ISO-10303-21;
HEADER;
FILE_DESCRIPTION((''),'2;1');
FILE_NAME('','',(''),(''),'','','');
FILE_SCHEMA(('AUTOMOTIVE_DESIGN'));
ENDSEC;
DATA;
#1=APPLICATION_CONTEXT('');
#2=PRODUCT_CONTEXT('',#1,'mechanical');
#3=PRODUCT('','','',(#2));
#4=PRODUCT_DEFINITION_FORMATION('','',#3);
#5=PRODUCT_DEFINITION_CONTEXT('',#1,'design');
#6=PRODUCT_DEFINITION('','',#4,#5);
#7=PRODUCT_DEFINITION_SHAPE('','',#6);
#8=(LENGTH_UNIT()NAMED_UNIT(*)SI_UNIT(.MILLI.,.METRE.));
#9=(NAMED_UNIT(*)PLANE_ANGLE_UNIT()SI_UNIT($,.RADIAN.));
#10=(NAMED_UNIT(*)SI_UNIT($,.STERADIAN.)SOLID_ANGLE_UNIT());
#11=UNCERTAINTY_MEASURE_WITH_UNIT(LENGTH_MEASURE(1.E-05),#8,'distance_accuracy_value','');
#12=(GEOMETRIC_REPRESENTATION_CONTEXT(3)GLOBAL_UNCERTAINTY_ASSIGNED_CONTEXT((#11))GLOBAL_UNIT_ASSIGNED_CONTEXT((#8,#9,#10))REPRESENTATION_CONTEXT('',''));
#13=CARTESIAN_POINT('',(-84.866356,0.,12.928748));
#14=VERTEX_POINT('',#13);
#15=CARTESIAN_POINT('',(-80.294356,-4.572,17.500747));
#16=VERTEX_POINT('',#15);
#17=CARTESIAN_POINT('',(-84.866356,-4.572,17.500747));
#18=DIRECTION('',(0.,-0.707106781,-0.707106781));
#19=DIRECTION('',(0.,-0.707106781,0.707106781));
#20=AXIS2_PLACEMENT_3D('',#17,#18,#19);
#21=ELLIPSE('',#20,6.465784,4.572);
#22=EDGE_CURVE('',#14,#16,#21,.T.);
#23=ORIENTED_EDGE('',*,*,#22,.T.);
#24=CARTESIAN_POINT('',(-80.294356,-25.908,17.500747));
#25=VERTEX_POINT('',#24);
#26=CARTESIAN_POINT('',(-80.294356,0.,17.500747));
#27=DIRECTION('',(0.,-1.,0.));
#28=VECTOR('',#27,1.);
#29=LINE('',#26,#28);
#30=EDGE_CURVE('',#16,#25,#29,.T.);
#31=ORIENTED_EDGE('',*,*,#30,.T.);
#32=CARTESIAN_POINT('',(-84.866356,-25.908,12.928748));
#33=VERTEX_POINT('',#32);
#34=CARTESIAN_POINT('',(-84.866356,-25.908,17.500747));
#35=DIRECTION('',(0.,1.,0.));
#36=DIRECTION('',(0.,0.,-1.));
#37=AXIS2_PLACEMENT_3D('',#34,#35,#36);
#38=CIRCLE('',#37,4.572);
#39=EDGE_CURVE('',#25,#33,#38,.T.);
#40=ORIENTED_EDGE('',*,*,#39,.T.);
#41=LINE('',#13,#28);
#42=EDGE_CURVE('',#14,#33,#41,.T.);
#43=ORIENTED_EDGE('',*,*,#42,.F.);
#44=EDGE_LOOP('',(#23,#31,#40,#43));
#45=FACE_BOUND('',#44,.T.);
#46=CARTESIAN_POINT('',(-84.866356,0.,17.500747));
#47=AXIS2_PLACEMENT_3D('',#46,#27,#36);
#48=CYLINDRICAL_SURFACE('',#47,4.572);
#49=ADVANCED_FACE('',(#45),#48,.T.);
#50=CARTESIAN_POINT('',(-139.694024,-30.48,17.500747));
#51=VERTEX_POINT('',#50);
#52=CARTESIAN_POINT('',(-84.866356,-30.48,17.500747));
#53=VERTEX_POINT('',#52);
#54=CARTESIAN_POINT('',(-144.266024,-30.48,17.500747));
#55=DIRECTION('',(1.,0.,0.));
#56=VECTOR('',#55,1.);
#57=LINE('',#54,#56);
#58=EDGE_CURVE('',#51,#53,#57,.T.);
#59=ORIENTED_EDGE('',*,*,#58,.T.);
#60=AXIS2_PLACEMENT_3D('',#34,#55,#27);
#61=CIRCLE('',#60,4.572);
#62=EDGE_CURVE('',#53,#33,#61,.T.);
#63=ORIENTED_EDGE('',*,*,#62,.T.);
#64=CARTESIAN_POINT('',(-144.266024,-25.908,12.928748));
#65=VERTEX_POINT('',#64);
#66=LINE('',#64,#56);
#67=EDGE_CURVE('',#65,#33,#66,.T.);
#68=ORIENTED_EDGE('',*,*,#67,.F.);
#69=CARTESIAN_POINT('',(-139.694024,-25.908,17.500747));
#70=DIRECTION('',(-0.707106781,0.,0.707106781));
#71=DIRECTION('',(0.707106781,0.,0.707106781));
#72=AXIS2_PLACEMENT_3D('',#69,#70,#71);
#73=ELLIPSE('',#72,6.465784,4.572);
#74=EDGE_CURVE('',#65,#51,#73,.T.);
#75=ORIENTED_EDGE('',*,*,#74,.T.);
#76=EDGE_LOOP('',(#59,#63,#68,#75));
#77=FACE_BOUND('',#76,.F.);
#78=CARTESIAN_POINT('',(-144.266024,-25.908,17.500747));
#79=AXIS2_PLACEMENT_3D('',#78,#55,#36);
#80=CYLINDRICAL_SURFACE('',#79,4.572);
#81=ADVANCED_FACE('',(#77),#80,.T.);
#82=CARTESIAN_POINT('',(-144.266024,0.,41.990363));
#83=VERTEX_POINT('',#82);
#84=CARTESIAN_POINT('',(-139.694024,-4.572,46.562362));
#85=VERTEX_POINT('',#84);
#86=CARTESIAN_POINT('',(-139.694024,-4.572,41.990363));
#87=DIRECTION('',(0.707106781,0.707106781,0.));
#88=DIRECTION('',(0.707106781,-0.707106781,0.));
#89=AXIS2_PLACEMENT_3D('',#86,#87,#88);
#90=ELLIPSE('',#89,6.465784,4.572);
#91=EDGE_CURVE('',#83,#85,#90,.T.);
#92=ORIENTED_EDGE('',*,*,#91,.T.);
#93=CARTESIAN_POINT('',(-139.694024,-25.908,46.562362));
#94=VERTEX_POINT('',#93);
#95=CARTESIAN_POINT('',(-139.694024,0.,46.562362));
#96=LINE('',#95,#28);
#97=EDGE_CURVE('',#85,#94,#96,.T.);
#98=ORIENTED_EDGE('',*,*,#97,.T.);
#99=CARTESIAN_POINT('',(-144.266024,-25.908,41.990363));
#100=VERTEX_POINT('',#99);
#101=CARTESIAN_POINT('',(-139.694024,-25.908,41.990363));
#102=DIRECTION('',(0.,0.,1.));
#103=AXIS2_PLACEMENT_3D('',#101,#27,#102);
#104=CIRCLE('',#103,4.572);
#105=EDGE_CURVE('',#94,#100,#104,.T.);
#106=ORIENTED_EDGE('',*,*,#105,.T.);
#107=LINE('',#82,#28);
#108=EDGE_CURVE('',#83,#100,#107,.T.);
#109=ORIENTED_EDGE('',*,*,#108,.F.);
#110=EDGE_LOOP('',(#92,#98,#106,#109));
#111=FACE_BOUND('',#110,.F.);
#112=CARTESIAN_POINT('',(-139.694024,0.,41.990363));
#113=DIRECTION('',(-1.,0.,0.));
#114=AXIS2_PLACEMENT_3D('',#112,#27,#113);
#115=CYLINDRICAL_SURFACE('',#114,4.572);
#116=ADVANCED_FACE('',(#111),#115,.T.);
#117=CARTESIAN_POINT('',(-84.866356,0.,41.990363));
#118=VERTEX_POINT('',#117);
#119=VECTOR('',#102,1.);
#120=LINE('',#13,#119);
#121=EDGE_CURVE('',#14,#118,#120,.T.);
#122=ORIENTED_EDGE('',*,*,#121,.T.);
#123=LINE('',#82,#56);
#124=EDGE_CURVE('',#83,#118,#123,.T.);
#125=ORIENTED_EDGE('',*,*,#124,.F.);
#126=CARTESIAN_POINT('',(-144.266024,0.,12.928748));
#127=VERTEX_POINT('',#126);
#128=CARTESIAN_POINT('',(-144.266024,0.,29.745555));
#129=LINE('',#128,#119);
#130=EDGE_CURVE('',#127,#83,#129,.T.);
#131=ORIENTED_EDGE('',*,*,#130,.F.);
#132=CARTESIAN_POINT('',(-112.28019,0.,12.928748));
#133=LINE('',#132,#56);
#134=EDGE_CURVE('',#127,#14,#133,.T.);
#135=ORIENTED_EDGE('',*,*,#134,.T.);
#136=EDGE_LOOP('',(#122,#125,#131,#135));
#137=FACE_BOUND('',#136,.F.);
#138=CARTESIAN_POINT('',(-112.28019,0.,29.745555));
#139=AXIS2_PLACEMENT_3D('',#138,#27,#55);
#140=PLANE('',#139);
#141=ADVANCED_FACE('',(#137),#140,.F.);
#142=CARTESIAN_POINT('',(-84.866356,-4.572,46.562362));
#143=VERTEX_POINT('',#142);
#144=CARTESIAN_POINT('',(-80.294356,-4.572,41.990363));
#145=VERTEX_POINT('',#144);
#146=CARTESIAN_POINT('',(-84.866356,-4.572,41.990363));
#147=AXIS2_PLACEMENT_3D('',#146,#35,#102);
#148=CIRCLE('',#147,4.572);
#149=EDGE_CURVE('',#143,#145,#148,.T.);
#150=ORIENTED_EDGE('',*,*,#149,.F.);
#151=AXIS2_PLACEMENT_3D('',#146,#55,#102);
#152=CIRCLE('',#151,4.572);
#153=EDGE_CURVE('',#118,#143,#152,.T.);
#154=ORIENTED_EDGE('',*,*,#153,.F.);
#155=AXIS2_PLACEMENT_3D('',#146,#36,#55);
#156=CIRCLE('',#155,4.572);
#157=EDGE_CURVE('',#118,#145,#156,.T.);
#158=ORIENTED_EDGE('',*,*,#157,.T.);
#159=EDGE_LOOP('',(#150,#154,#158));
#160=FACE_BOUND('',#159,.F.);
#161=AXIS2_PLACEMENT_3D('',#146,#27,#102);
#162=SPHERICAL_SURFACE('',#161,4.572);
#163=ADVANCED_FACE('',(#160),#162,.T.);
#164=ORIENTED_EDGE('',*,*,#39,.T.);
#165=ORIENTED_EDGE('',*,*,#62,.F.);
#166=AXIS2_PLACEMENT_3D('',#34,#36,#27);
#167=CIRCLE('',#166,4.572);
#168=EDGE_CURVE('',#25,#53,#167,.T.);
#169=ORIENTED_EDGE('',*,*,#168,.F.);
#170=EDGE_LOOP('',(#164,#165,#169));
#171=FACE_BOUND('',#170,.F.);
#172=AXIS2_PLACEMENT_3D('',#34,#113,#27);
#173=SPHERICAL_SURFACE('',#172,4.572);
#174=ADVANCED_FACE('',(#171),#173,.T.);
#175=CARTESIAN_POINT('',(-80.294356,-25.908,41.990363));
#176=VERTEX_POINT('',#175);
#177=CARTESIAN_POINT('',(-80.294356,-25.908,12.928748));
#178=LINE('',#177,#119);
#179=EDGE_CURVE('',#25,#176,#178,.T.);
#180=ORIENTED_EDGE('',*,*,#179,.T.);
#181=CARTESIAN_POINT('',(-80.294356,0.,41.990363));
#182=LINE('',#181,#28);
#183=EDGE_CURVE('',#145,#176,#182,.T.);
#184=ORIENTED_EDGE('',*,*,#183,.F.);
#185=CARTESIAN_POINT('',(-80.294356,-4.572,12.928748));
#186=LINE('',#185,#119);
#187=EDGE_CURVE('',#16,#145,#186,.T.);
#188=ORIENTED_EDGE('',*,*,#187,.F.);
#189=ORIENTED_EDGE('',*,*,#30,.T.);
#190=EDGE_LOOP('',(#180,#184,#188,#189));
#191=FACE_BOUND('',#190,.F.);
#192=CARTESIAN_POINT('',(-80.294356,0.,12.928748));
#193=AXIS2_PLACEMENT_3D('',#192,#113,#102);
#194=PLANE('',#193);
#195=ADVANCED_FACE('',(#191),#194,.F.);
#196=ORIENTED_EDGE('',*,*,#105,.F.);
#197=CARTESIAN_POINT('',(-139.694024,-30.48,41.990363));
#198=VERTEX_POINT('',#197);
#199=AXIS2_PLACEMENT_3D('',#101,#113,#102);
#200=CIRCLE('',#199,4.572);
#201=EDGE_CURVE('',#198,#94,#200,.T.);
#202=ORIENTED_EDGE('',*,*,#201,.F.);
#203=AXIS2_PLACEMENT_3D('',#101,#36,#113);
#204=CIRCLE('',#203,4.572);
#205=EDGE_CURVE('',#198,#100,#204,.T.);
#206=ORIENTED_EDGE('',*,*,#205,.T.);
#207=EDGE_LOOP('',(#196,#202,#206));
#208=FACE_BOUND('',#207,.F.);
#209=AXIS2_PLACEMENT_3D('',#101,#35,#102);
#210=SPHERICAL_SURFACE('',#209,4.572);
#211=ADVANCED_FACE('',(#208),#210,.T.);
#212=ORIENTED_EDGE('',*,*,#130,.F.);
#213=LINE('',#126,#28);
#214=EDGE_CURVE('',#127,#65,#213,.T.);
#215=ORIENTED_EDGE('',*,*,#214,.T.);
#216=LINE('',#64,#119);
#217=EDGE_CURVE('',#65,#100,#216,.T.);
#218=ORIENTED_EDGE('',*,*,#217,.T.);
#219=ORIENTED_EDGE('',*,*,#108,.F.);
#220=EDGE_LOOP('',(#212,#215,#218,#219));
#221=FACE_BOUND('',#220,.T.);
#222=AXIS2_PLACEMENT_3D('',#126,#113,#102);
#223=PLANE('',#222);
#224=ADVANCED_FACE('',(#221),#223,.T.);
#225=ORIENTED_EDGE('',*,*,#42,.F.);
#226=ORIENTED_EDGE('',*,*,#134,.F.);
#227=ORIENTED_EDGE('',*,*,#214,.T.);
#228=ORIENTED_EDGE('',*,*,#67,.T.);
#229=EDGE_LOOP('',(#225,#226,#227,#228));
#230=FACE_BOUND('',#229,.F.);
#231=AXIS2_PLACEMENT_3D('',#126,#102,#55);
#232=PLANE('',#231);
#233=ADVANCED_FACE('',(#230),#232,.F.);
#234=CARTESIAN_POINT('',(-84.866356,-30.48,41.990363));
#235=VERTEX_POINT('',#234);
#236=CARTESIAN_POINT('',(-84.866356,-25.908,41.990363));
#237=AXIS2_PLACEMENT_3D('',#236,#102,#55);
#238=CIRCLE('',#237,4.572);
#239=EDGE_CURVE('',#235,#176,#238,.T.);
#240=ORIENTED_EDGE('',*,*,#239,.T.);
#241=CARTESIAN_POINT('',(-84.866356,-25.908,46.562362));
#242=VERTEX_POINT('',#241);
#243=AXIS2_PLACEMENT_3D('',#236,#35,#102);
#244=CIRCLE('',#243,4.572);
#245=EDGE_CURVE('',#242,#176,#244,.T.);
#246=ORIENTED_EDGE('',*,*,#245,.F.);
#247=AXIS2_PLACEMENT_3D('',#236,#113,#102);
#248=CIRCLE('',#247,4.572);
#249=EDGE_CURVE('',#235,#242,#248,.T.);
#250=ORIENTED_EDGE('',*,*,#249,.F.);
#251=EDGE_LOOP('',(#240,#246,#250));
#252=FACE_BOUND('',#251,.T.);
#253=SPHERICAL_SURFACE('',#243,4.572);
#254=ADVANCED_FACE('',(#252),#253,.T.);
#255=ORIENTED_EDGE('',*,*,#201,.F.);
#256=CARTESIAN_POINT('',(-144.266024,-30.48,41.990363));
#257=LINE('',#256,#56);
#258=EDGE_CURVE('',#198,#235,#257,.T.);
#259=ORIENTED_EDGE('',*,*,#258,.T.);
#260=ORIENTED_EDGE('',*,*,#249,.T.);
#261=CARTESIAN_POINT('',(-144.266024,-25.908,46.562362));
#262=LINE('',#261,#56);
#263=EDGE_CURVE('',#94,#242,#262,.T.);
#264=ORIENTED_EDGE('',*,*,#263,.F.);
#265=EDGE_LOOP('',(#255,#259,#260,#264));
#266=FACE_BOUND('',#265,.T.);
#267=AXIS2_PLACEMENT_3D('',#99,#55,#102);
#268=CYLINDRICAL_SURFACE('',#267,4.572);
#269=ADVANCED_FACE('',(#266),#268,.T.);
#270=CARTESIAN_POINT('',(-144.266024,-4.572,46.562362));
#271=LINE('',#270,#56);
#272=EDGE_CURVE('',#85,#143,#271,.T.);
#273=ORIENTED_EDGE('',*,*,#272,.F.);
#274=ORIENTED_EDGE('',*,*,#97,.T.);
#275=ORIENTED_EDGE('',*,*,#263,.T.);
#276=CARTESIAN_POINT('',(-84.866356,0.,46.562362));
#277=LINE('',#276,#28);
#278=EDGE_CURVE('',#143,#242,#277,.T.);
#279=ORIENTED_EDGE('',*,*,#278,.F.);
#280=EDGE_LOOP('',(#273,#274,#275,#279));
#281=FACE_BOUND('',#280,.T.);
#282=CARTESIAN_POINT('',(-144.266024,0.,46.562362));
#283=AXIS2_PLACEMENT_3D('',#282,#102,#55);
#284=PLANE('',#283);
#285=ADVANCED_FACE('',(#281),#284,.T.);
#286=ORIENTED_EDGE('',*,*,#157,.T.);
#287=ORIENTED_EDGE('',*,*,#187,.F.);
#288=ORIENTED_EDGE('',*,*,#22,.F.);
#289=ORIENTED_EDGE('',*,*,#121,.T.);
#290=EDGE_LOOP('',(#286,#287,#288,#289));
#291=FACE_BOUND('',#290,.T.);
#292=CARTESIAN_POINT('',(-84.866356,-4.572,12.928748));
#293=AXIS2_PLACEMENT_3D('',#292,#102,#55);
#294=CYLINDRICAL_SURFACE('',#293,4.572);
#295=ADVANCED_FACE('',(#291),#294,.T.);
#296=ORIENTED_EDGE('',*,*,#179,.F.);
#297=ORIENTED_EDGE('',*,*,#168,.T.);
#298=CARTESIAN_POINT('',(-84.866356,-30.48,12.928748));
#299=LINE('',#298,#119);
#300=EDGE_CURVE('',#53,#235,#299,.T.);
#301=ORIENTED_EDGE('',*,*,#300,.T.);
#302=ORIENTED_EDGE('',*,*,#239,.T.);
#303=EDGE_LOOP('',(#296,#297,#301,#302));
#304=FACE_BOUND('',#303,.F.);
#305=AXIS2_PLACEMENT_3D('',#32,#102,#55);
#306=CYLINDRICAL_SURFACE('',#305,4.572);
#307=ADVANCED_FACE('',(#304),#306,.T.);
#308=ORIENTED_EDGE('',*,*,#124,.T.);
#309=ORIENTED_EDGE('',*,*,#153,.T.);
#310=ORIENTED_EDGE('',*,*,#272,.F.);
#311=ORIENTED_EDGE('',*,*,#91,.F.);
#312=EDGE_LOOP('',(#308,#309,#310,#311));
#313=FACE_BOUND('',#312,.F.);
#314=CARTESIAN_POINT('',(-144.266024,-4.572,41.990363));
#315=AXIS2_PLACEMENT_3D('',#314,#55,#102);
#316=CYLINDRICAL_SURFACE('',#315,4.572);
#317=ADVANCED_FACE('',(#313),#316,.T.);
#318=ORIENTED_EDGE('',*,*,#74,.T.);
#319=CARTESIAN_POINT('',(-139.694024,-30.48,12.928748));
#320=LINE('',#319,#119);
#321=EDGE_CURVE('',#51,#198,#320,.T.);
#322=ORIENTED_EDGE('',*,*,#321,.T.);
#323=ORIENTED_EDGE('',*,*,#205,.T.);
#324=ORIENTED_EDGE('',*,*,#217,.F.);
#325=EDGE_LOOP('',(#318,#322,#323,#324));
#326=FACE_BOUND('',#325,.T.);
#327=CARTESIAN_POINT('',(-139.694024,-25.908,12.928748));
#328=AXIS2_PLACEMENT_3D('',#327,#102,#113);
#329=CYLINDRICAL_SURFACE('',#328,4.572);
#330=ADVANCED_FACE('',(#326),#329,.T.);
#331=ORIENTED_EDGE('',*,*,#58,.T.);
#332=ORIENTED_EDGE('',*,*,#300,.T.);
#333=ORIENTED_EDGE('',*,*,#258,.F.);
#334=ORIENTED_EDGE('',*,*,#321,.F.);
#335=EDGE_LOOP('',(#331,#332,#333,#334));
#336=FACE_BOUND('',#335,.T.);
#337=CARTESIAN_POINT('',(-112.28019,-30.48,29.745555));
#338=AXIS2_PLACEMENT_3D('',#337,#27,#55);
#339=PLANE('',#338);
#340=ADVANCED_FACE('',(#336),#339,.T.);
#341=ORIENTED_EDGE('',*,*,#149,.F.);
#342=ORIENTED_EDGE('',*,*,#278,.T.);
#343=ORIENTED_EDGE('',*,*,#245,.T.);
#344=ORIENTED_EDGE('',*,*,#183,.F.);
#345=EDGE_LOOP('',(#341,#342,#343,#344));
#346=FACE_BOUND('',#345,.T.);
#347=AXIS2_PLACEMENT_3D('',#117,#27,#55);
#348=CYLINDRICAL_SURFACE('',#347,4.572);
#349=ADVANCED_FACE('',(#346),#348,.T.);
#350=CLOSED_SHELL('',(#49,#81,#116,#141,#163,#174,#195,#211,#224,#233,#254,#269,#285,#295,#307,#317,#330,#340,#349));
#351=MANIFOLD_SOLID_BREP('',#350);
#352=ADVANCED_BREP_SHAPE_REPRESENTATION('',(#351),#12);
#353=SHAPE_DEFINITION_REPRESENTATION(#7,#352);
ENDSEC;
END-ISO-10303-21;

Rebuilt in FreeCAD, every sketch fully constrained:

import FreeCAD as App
import Part
import Sketcher

V = App.Vector
Q = App.Units.Quantity


def edges_at(feature, points):
    """Names of the edges that pass closest to the given points."""
    edges = feature.Shape.Edges
    near = lambda p: min(range(len(edges)), key=lambda i: edges[i].distToShape(Part.Vertex(*p))[0])
    return sorted({f"Edge{near(p) + 1}" for p in points})

doc = App.newDocument("Part")
body = doc.addObject("PartDesign::Body", "Body")

sketch1 = body.newObject("Sketcher::SketchObject", "Sketch")
sketch1.AttachmentSupport = (doc.getObject("XZ_Plane"), [""])
sketch1.MapMode = "FlatFace"
sketch1.addGeometry([
    Part.LineSegment(V(-144.266024, 46.562362, 0), V(-144.266024, 12.928748, 0)),
    Part.LineSegment(V(-144.266024, 12.928748, 0), V(-80.294356, 12.928748, 0)),
    Part.LineSegment(V(-80.294356, 12.928748, 0), V(-80.294356, 46.562362, 0)),
    Part.LineSegment(V(-80.294356, 46.562362, 0), V(-144.266024, 46.562362, 0)),
], False)
sketch1.addConstraint([
    Sketcher.Constraint("Coincident", 0, 2, 1, 1),
    Sketcher.Constraint("Coincident", 1, 2, 2, 1),
    Sketcher.Constraint("Coincident", 2, 2, 3, 1),
    Sketcher.Constraint("Coincident", 3, 2, 0, 1),
    Sketcher.Constraint("Vertical", 0),
    Sketcher.Constraint("Horizontal", 1),
    Sketcher.Constraint("Vertical", 2),
    Sketcher.Constraint("Horizontal", 3),
    Sketcher.Constraint("DistanceX", 1, 1, 1, 2, Q("63.971668 mm")),
    Sketcher.Constraint("DistanceY", 0, 2, 0, 1, Q("33.633615 mm")),
    Sketcher.Constraint("DistanceX", 0, 2, -1, 1, Q("144.266024 mm")),
    Sketcher.Constraint("DistanceY", -1, 1, 0, 2, Q("12.928748 mm")),
])
pad1 = body.newObject("PartDesign::Pad", "Pad")
pad1.Profile = sketch1
pad1.Length = Q("1.2 in")
doc.recompute()

fillet = body.newObject("PartDesign::Fillet", "Fillet")
fillet.Base = (pad1, edges_at(pad1, [
    (-80.294, -15.24, 46.562),
    (-144.266, -15.24, 46.562),
    (-112.28, 0, 46.562),
    (-112.28, -30.48, 46.562),
    (-144.266, -30.48, 29.746),
    (-112.28, -30.48, 12.929),
    (-80.294, -30.48, 29.746),
    (-80.294, -15.24, 12.929),
    (-80.294, 0, 29.746),
]))
fillet.Radius = Q("0.18 in")

doc.recompute()
